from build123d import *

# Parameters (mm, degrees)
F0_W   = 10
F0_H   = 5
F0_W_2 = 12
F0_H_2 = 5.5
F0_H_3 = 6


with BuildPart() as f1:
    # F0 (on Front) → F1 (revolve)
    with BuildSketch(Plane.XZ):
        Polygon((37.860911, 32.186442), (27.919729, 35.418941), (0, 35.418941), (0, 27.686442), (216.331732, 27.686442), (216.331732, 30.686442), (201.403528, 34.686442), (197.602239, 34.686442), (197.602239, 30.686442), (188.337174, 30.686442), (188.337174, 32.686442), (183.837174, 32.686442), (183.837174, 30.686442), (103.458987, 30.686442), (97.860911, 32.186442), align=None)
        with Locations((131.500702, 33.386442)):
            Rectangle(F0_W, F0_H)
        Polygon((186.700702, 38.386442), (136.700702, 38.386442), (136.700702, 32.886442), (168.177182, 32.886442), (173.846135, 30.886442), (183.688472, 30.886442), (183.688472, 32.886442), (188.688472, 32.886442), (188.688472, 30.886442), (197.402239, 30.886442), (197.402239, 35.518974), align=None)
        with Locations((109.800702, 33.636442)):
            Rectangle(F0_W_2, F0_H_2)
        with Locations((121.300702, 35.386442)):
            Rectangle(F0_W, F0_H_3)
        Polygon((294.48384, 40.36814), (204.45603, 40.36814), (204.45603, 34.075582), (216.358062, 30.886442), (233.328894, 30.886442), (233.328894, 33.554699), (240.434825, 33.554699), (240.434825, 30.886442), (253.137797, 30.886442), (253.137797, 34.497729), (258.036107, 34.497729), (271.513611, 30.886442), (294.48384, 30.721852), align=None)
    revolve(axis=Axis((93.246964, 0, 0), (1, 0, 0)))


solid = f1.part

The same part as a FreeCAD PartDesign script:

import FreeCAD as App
import Part
import Sketcher
from FreeCAD import Vector
Q = App.Units.Quantity

doc = App.newDocument("Part")
params = doc.addObject("Spreadsheet::Sheet", "Params")
for row, (alias, value) in enumerate([
    ("sketch1_width", "60 mm"),
    ("sketch1_width2", "10 mm"),
    ("sketch1_width3", "50 mm"),
    ("sketch1_width4", "5 mm"),
    ("sketch1_width5", "12 mm"),
    ("revolution_angle", "360 deg"),
], start=1):
    params.set(f"A{row}", alias)
    params.set(f"B{row}", "=" + value)
    params.setAlias(f"B{row}", alias)

body = doc.addObject("PartDesign::Body", "Body")
body.AllowCompound = True

sketch1 = body.newObject("Sketcher::SketchObject", "Sketch")
sketch1.AttachmentSupport = (doc.getObject("XZ_Plane"), [""])
sketch1.MapMode = "FlatFace"
sketch1.addGeometry([
    Part.LineSegment(Vector(37.860911, 32.186442, 0), Vector(27.919729, 35.418941, 0)),
    Part.LineSegment(Vector(27.919729, 35.418941, 0), Vector(0, 35.418941, 0)),
    Part.LineSegment(Vector(0, 35.418941, 0), Vector(0, 27.686442, 0)),
    Part.LineSegment(Vector(0, 27.686442, 0), Vector(216.331732, 27.686442, 0)),
    Part.LineSegment(Vector(216.331732, 27.686442, 0), Vector(216.331732, 30.686442, 0)),
    Part.LineSegment(Vector(216.331732, 30.686442, 0), Vector(201.403528, 34.686442, 0)),
    Part.LineSegment(Vector(201.403528, 34.686442, 0), Vector(197.602239, 34.686442, 0)),
    Part.LineSegment(Vector(197.602239, 34.686442, 0), Vector(197.602239, 30.686442, 0)),
    Part.LineSegment(Vector(197.602239, 30.686442, 0), Vector(188.337174, 30.686442, 0)),
    Part.LineSegment(Vector(188.337174, 30.686442, 0), Vector(188.337174, 32.686442, 0)),
    Part.LineSegment(Vector(188.337174, 32.686442, 0), Vector(183.837174, 32.686442, 0)),
    Part.LineSegment(Vector(183.837174, 32.686442, 0), Vector(183.837174, 30.686442, 0)),
    Part.LineSegment(Vector(183.837174, 30.686442, 0), Vector(103.458987, 30.686442, 0)),
    Part.LineSegment(Vector(103.458987, 30.686442, 0), Vector(97.860911, 32.186442, 0)),
    Part.LineSegment(Vector(97.860911, 32.186442, 0), Vector(37.860911, 32.186442, 0)),
    Part.LineSegment(Vector(126.500702, 35.886442, 0), Vector(126.500702, 30.886442, 0)),
    Part.LineSegment(Vector(126.500702, 30.886442, 0), Vector(136.500702, 30.886442, 0)),
    Part.LineSegment(Vector(136.500702, 30.886442, 0), Vector(136.500702, 35.886442, 0)),
    Part.LineSegment(Vector(136.500702, 35.886442, 0), Vector(126.500702, 35.886442, 0)),
    Part.LineSegment(Vector(186.700702, 38.386442, 0), Vector(136.700702, 38.386442, 0)),
    Part.LineSegment(Vector(136.700702, 38.386442, 0), Vector(136.700702, 32.886442, 0)),
    Part.LineSegment(Vector(136.700702, 32.886442, 0), Vector(168.177182, 32.886442, 0)),
    Part.LineSegment(Vector(168.177182, 32.886442, 0), Vector(173.846135, 30.886442, 0)),
    Part.LineSegment(Vector(173.846135, 30.886442, 0), Vector(183.688472, 30.886442, 0)),
    Part.LineSegment(Vector(183.688472, 30.886442, 0), Vector(183.688472, 32.886442, 0)),
    Part.LineSegment(Vector(183.688472, 32.886442, 0), Vector(188.688472, 32.886442, 0)),
    Part.LineSegment(Vector(188.688472, 32.886442, 0), Vector(188.688472, 30.886442, 0)),
    Part.LineSegment(Vector(188.688472, 30.886442, 0), Vector(197.402239, 30.886442, 0)),
    Part.LineSegment(Vector(197.402239, 30.886442, 0), Vector(197.402239, 35.518974, 0)),
    Part.LineSegment(Vector(197.402239, 35.518974, 0), Vector(186.700702, 38.386442, 0)),
    Part.LineSegment(Vector(103.800702, 36.386442, 0), Vector(103.800702, 30.886442, 0)),
    Part.LineSegment(Vector(103.800702, 30.886442, 0), Vector(115.800702, 30.886442, 0)),
    Part.LineSegment(Vector(115.800702, 30.886442, 0), Vector(115.800702, 36.386442, 0)),
    Part.LineSegment(Vector(115.800702, 36.386442, 0), Vector(103.800702, 36.386442, 0)),
    Part.LineSegment(Vector(116.300702, 38.386442, 0), Vector(116.300702, 32.386442, 0)),
    Part.LineSegment(Vector(116.300702, 32.386442, 0), Vector(126.300702, 32.386442, 0)),
    Part.LineSegment(Vector(126.300702, 32.386442, 0), Vector(126.300702, 38.386442, 0)),
    Part.LineSegment(Vector(126.300702, 38.386442, 0), Vector(116.300702, 38.386442, 0)),
    Part.LineSegment(Vector(294.48384, 40.36814, 0), Vector(204.45603, 40.36814, 0)),
    Part.LineSegment(Vector(204.45603, 40.36814, 0), Vector(204.45603, 34.075582, 0)),
    Part.LineSegment(Vector(204.45603, 34.075582, 0), Vector(216.358062, 30.886442, 0)),
    Part.LineSegment(Vector(216.358062, 30.886442, 0), Vector(233.328894, 30.886442, 0)),
    Part.LineSegment(Vector(233.328894, 30.886442, 0), Vector(233.328894, 33.554699, 0)),
    Part.LineSegment(Vector(233.328894, 33.554699, 0), Vector(240.434825, 33.554699, 0)),
    Part.LineSegment(Vector(240.434825, 33.554699, 0), Vector(240.434825, 30.886442, 0)),
    Part.LineSegment(Vector(240.434825, 30.886442, 0), Vector(253.137797, 30.886442, 0)),
    Part.LineSegment(Vector(253.137797, 30.886442, 0), Vector(253.137797, 34.497729, 0)),
    Part.LineSegment(Vector(253.137797, 34.497729, 0), Vector(258.036107, 34.497729, 0)),
    Part.LineSegment(Vector(258.036107, 34.497729, 0), Vector(271.513611, 30.886442, 0)),
    Part.LineSegment(Vector(271.513611, 30.886442, 0), Vector(294.48384, 30.721852, 0)),
    Part.LineSegment(Vector(294.48384, 30.721852, 0), Vector(294.48384, 40.36814, 0)),
], False)
sketch1.addConstraint([
    Sketcher.Constraint("Coincident", 0, 2, 1, 1),
    Sketcher.Constraint("Coincident", 1, 2, 2, 1),
    Sketcher.Constraint("Coincident", 2, 2, 3, 1),
    Sketcher.Constraint("Coincident", 3, 2, 4, 1),
    Sketcher.Constraint("Coincident", 4, 2, 5, 1),
    Sketcher.Constraint("Coincident", 5, 2, 6, 1),
    Sketcher.Constraint("Coincident", 6, 2, 7, 1),
    Sketcher.Constraint("Coincident", 7, 2, 8, 1),
    Sketcher.Constraint("Coincident", 8, 2, 9, 1),
    Sketcher.Constraint("Coincident", 9, 2, 10, 1),
    Sketcher.Constraint("Coincident", 10, 2, 11, 1),
    Sketcher.Constraint("Coincident", 11, 2, 12, 1),
    Sketcher.Constraint("Coincident", 12, 2, 13, 1),
    Sketcher.Constraint("Coincident", 13, 2, 14, 1),
    Sketcher.Constraint("Coincident", 14, 2, 0, 1),
    Sketcher.Constraint("Coincident", 15, 2, 16, 1),
    Sketcher.Constraint("Coincident", 16, 2, 17, 1),
    Sketcher.Constraint("Coincident", 17, 2, 18, 1),
    Sketcher.Constraint("Coincident", 18, 2, 15, 1),
    Sketcher.Constraint("Coincident", 19, 2, 20, 1),
    Sketcher.Constraint("Coincident", 20, 2, 21, 1),
    Sketcher.Constraint("Coincident", 21, 2, 22, 1),
    Sketcher.Constraint("Coincident", 22, 2, 23, 1),
    Sketcher.Constraint("Coincident", 23, 2, 24, 1),
    Sketcher.Constraint("Coincident", 24, 2, 25, 1),
    Sketcher.Constraint("Coincident", 25, 2, 26, 1),
    Sketcher.Constraint("Coincident", 26, 2, 27, 1),
    Sketcher.Constraint("Coincident", 27, 2, 28, 1),
    Sketcher.Constraint("Coincident", 28, 2, 29, 1),
    Sketcher.Constraint("Coincident", 29, 2, 19, 1),
    Sketcher.Constraint("Coincident", 30, 2, 31, 1),
    Sketcher.Constraint("Coincident", 31, 2, 32, 1),
    Sketcher.Constraint("Coincident", 32, 2, 33, 1),
    Sketcher.Constraint("Coincident", 33, 2, 30, 1),
    Sketcher.Constraint("Coincident", 34, 2, 35, 1),
    Sketcher.Constraint("Coincident", 35, 2, 36, 1),
    Sketcher.Constraint("Coincident", 36, 2, 37, 1),
    Sketcher.Constraint("Coincident", 37, 2, 34, 1),
    Sketcher.Constraint("Coincident", 38, 2, 39, 1),
    Sketcher.Constraint("Coincident", 39, 2, 40, 1),
    Sketcher.Constraint("Coincident", 40, 2, 41, 1),
    Sketcher.Constraint("Coincident", 41, 2, 42, 1),
    Sketcher.Constraint("Coincident", 42, 2, 43, 1),
    Sketcher.Constraint("Coincident", 43, 2, 44, 1),
    Sketcher.Constraint("Coincident", 44, 2, 45, 1),
    Sketcher.Constraint("Coincident", 45, 2, 46, 1),
    Sketcher.Constraint("Coincident", 46, 2, 47, 1),
    Sketcher.Constraint("Coincident", 47, 2, 48, 1),
    Sketcher.Constraint("Coincident", 48, 2, 49, 1),
    Sketcher.Constraint("Coincident", 49, 2, 50, 1),
    Sketcher.Constraint("Coincident", 50, 2, 38, 1),
    Sketcher.Constraint("Horizontal", 1),
    Sketcher.Constraint("Vertical", 2),
    Sketcher.Constraint("Horizontal", 3),
    Sketcher.Constraint("Vertical", 4),
    Sketcher.Constraint("Horizontal", 6),
    Sketcher.Constraint("Vertical", 7),
    Sketcher.Constraint("Horizontal", 8),
    Sketcher.Constraint("Vertical", 9),
    Sketcher.Constraint("Horizontal", 10),
    Sketcher.Constraint("Vertical", 11),
    Sketcher.Constraint("Horizontal", 12),
    Sketcher.Constraint("Horizontal", 14),
    Sketcher.Constraint("Vertical", 15),
    Sketcher.Constraint("Horizontal", 16),
    Sketcher.Constraint("Vertical", 17),
    Sketcher.Constraint("Horizontal", 18),
    Sketcher.Constraint("Horizontal", 19),
    Sketcher.Constraint("Vertical", 20),
    Sketcher.Constraint("Horizontal", 21),
    Sketcher.Constraint("Horizontal", 23),
    Sketcher.Constraint("Vertical", 24),
    Sketcher.Constraint("Horizontal", 25),
    Sketcher.Constraint("Vertical", 26),
    Sketcher.Constraint("Horizontal", 27),
    Sketcher.Constraint("Vertical", 28),
    Sketcher.Constraint("Vertical", 30),
    Sketcher.Constraint("Horizontal", 31),
    Sketcher.Constraint("Vertical", 32),
    Sketcher.Constraint("Horizontal", 33),
    Sketcher.Constraint("Vertical", 34),
    Sketcher.Constraint("Horizontal", 35),
    Sketcher.Constraint("Vertical", 36),
    Sketcher.Constraint("Horizontal", 37),
    Sketcher.Constraint("Horizontal", 38),
    Sketcher.Constraint("Vertical", 39),
    Sketcher.Constraint("Horizontal", 41),
    Sketcher.Constraint("Vertical", 42),
    Sketcher.Constraint("Horizontal", 43),
    Sketcher.Constraint("Vertical", 44),
    Sketcher.Constraint("Horizontal", 45),
    Sketcher.Constraint("Vertical", 46),
    Sketcher.Constraint("Horizontal", 47),
    Sketcher.Constraint("Vertical", 50),
    Sketcher.Constraint("PointOnObject", 1, 2, -2),
    Sketcher.Constraint("DistanceX", 14, 2, 14, 1, Q("60 mm")),
    Sketcher.Constraint("DistanceX", 16, 1, 16, 2, Q("10 mm")),
    Sketcher.Constraint("DistanceX", 19, 2, 19, 1, Q("50 mm")),
    Sketcher.Constraint("DistanceX", 25, 1, 25, 2, Q("5 mm")),
    Sketcher.Constraint("DistanceX", 31, 1, 31, 2, Q("12 mm")),
    Sketcher.Constraint("DistanceX", 35, 1, 35, 2, Q("10 mm")),
    Sketcher.Constraint("DistanceY", 4, 1, 4, 2, Q("3 mm")),
    Sketcher.Constraint("DistanceY", 7, 2, 7, 1, Q("4 mm")),
    Sketcher.Constraint("DistanceY", 9, 1, 9, 2, Q("2 mm")),
    Sketcher.Constraint("DistanceY", 11, 2, 11, 1, Q("2 mm")),
    Sketcher.Constraint("DistanceY", 15, 2, 15, 1, Q("5 mm")),
    Sketcher.Constraint("DistanceY", 24, 1, 24, 2, Q("2 mm")),
    Sketcher.Constraint("DistanceY", 26, 2, 26, 1, Q("2 mm")),
    Sketcher.Constraint("DistanceY", 34, 2, 34, 1, Q("6 mm")),
    Sketcher.Constraint("DistanceX", 10, 2, 10, 1, Q("4.5 mm")),
    Sketcher.Constraint("DistanceY", 20, 2, 20, 1, Q("5.5 mm")),
    Sketcher.Constraint("DistanceY", 30, 2, 30, 1, Q("5.5 mm")),
    Sketcher.Constraint("DistanceY", 4, 2, 5, 2, Q("4 mm")),
    Sketcher.Constraint("DistanceY", 16, 2, 20, 2, Q("2 mm")),
    Sketcher.Constraint("DistanceY", 22, 2, 21, 2, Q("2 mm")),
    Sketcher.Constraint("DistanceY", 30, 2, 18, 2, Q("5 mm")),
    Sketcher.Constraint("DistanceY", 34, 2, 32, 2, Q("4 mm")),
    Sketcher.Constraint("DistanceY", 12, 2, 13, 2, Q("1.5 mm")),
    Sketcher.Constraint("DistanceY", 12, 2, 15, 2, Q("0.2 mm")),
    Sketcher.Constraint("DistanceX", 17, 2, 19, 2, Q("0.2 mm")),
    Sketcher.Constraint("DistanceX", 27, 2, 7, 2, Q("0.2 mm")),
    Sketcher.Constraint("DistanceX", 30, 2, 15, 2, Q("22.7 mm")),
    Sketcher.Constraint("DistanceX", 31, 2, 34, 2, Q("0.5 mm")),
    Sketcher.Constraint("DistanceY", 4, 2, 40, 2, Q("0.2 mm")),
    Sketcher.Constraint("DistanceY", 4, 2, 44, 2, Q("0.2 mm")),
    Sketcher.Constraint("DistanceY", 2, 2, 2, 1, Q("7.732499 mm")),
    Sketcher.Constraint("DistanceX", 1, 2, 1, 1, Q("27.919729 mm")),
    Sketcher.Constraint("DistanceX", 3, 1, 3, 2, Q("216.331732 mm")),
    Sketcher.Constraint("DistanceX", 6, 2, 6, 1, Q("3.801289 mm")),
    Sketcher.Constraint("DistanceX", 21, 1, 21, 2, Q("31.47648 mm")),
    Sketcher.Constraint("DistanceX", 38, 2, 38, 1, Q("90.02781 mm")),
    Sketcher.Constraint("DistanceX", 43, 1, 43, 2, Q("7.105931 mm")),
    Sketcher.Constraint("DistanceX", 47, 1, 47, 2, Q("4.89831 mm")),
    Sketcher.Constraint("DistanceX", -1, 1, 16, 2, Q("136.500702 mm")),
    Sketcher.Constraint("DistanceY", -1, 1, 42, 2, Q("33.554699 mm")),
    Sketcher.Constraint("DistanceX", 0, 2, 5, 2, Q("173.483799 mm")),
    Sketcher.Constraint("Distance", 22, Q("6.011408 mm")),
    Sketcher.Constraint("Distance", 40, Q("12.32189 mm")),
    Sketcher.Constraint("Distance", 48, Q("13.952939 mm")),
    Sketcher.Constraint("Distance", 49, Q("22.970819 mm")),
    Sketcher.Constraint("DistanceX", 8, 2, 8, 1, Q("9.265065 mm")),
    Sketcher.Constraint("DistanceX", 12, 2, 12, 1, Q("80.378187 mm")),
    Sketcher.Constraint("DistanceX", 23, 1, 23, 2, Q("9.842337 mm")),
    Sketcher.Constraint("DistanceX", 41, 1, 41, 2, Q("16.970832 mm")),
    Sketcher.Constraint("DistanceX", 45, 1, 45, 2, Q("12.702972 mm")),
    Sketcher.Constraint("DistanceY", 28, 1, 28, 2, Q("4.632532 mm")),
    Sketcher.Constraint("DistanceY", 39, 2, 39, 1, Q("6.292558 mm")),
    Sketcher.Constraint("DistanceY", 42, 1, 42, 2, Q("2.668257 mm")),
    Sketcher.Constraint("DistanceY", 46, 1, 46, 2, Q("3.611287 mm")),
    Sketcher.Constraint("DistanceY", 50, 1, 50, 2, Q("9.646288 mm")),
    Sketcher.Constraint("DistanceX", -1, 1, 13, 2, Q("97.860911 mm")),
    Sketcher.Constraint("DistanceX", -1, 1, 38, 2, Q("204.45603 mm")),
    Sketcher.Constraint("DistanceY", -1, 1, 38, 2, Q("40.36814 mm")),
])
sketch1.setExpression("Constraints[95]", "Params.sketch1_width")
sketch1.setExpression("Constraints[96]", "Params.sketch1_width2")
sketch1.setExpression("Constraints[97]", "Params.sketch1_width3")
sketch1.setExpression("Constraints[98]", "Params.sketch1_width4")
sketch1.setExpression("Constraints[99]", "Params.sketch1_width5")
revolution = body.newObject("PartDesign::Revolution", "Revolution")
revolution.Profile = sketch1
revolution.ReferenceAxis = (sketch1, ["H_Axis"])
revolution.setExpression("Angle", "Params.revolution_angle")

doc.recompute()
